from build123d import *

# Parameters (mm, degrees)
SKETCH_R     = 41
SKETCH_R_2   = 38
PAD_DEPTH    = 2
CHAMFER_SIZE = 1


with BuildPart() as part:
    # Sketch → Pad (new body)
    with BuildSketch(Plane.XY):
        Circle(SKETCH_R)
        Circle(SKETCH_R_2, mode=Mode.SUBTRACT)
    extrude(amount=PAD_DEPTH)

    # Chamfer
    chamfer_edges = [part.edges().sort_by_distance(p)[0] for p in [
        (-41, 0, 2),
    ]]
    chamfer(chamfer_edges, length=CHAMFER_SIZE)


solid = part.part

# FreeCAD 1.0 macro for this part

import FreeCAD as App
import Part
import Sketcher

V = App.Vector
Q = App.Units.Quantity


def edges_at(feature, points):
    """Names of the edges that pass closest to the given points."""
    edges = feature.Shape.Edges
    near = lambda p: min(range(len(edges)), key=lambda i: edges[i].distToShape(Part.Vertex(*p))[0])
    return sorted({f"Edge{near(p) + 1}" for p in points})

doc = App.newDocument("Part")
body = doc.addObject("PartDesign::Body", "Body")

# Sketch on XY plane
sketch1 = body.newObject("Sketcher::SketchObject", "Sketch")
sketch1.AttachmentSupport = (doc.getObject("XY_Plane"), [""])
sketch1.MapMode = "FlatFace"
sketch1.addGeometry(Part.Circle(V(0, 0, 0), V(0, 0, 1), 41), False)
sketch1.addGeometry(Part.Circle(V(0, 0, 0), V(0, 0, 1), 38), False)
sketch1.addConstraint(Sketcher.Constraint("Coincident", 0, 3, -1, 1))
sketch1.addConstraint(Sketcher.Constraint("Coincident", 1, 3, -1, 1))
sketch1.addConstraint(Sketcher.Constraint("Diameter", 0, Q("82 mm")))
sketch1.addConstraint(Sketcher.Constraint("Diameter", 1, Q("76 mm")))
pad1 = body.newObject("PartDesign::Pad", "Pad")
pad1.Profile = sketch1
pad1.Length = 2
doc.recompute()

chamfer = body.newObject("PartDesign::Chamfer", "Chamfer")
chamfer.Base = (pad1, edges_at(pad1, [(-41, 0, 2)]))
chamfer.Size = 1

doc.recompute()
